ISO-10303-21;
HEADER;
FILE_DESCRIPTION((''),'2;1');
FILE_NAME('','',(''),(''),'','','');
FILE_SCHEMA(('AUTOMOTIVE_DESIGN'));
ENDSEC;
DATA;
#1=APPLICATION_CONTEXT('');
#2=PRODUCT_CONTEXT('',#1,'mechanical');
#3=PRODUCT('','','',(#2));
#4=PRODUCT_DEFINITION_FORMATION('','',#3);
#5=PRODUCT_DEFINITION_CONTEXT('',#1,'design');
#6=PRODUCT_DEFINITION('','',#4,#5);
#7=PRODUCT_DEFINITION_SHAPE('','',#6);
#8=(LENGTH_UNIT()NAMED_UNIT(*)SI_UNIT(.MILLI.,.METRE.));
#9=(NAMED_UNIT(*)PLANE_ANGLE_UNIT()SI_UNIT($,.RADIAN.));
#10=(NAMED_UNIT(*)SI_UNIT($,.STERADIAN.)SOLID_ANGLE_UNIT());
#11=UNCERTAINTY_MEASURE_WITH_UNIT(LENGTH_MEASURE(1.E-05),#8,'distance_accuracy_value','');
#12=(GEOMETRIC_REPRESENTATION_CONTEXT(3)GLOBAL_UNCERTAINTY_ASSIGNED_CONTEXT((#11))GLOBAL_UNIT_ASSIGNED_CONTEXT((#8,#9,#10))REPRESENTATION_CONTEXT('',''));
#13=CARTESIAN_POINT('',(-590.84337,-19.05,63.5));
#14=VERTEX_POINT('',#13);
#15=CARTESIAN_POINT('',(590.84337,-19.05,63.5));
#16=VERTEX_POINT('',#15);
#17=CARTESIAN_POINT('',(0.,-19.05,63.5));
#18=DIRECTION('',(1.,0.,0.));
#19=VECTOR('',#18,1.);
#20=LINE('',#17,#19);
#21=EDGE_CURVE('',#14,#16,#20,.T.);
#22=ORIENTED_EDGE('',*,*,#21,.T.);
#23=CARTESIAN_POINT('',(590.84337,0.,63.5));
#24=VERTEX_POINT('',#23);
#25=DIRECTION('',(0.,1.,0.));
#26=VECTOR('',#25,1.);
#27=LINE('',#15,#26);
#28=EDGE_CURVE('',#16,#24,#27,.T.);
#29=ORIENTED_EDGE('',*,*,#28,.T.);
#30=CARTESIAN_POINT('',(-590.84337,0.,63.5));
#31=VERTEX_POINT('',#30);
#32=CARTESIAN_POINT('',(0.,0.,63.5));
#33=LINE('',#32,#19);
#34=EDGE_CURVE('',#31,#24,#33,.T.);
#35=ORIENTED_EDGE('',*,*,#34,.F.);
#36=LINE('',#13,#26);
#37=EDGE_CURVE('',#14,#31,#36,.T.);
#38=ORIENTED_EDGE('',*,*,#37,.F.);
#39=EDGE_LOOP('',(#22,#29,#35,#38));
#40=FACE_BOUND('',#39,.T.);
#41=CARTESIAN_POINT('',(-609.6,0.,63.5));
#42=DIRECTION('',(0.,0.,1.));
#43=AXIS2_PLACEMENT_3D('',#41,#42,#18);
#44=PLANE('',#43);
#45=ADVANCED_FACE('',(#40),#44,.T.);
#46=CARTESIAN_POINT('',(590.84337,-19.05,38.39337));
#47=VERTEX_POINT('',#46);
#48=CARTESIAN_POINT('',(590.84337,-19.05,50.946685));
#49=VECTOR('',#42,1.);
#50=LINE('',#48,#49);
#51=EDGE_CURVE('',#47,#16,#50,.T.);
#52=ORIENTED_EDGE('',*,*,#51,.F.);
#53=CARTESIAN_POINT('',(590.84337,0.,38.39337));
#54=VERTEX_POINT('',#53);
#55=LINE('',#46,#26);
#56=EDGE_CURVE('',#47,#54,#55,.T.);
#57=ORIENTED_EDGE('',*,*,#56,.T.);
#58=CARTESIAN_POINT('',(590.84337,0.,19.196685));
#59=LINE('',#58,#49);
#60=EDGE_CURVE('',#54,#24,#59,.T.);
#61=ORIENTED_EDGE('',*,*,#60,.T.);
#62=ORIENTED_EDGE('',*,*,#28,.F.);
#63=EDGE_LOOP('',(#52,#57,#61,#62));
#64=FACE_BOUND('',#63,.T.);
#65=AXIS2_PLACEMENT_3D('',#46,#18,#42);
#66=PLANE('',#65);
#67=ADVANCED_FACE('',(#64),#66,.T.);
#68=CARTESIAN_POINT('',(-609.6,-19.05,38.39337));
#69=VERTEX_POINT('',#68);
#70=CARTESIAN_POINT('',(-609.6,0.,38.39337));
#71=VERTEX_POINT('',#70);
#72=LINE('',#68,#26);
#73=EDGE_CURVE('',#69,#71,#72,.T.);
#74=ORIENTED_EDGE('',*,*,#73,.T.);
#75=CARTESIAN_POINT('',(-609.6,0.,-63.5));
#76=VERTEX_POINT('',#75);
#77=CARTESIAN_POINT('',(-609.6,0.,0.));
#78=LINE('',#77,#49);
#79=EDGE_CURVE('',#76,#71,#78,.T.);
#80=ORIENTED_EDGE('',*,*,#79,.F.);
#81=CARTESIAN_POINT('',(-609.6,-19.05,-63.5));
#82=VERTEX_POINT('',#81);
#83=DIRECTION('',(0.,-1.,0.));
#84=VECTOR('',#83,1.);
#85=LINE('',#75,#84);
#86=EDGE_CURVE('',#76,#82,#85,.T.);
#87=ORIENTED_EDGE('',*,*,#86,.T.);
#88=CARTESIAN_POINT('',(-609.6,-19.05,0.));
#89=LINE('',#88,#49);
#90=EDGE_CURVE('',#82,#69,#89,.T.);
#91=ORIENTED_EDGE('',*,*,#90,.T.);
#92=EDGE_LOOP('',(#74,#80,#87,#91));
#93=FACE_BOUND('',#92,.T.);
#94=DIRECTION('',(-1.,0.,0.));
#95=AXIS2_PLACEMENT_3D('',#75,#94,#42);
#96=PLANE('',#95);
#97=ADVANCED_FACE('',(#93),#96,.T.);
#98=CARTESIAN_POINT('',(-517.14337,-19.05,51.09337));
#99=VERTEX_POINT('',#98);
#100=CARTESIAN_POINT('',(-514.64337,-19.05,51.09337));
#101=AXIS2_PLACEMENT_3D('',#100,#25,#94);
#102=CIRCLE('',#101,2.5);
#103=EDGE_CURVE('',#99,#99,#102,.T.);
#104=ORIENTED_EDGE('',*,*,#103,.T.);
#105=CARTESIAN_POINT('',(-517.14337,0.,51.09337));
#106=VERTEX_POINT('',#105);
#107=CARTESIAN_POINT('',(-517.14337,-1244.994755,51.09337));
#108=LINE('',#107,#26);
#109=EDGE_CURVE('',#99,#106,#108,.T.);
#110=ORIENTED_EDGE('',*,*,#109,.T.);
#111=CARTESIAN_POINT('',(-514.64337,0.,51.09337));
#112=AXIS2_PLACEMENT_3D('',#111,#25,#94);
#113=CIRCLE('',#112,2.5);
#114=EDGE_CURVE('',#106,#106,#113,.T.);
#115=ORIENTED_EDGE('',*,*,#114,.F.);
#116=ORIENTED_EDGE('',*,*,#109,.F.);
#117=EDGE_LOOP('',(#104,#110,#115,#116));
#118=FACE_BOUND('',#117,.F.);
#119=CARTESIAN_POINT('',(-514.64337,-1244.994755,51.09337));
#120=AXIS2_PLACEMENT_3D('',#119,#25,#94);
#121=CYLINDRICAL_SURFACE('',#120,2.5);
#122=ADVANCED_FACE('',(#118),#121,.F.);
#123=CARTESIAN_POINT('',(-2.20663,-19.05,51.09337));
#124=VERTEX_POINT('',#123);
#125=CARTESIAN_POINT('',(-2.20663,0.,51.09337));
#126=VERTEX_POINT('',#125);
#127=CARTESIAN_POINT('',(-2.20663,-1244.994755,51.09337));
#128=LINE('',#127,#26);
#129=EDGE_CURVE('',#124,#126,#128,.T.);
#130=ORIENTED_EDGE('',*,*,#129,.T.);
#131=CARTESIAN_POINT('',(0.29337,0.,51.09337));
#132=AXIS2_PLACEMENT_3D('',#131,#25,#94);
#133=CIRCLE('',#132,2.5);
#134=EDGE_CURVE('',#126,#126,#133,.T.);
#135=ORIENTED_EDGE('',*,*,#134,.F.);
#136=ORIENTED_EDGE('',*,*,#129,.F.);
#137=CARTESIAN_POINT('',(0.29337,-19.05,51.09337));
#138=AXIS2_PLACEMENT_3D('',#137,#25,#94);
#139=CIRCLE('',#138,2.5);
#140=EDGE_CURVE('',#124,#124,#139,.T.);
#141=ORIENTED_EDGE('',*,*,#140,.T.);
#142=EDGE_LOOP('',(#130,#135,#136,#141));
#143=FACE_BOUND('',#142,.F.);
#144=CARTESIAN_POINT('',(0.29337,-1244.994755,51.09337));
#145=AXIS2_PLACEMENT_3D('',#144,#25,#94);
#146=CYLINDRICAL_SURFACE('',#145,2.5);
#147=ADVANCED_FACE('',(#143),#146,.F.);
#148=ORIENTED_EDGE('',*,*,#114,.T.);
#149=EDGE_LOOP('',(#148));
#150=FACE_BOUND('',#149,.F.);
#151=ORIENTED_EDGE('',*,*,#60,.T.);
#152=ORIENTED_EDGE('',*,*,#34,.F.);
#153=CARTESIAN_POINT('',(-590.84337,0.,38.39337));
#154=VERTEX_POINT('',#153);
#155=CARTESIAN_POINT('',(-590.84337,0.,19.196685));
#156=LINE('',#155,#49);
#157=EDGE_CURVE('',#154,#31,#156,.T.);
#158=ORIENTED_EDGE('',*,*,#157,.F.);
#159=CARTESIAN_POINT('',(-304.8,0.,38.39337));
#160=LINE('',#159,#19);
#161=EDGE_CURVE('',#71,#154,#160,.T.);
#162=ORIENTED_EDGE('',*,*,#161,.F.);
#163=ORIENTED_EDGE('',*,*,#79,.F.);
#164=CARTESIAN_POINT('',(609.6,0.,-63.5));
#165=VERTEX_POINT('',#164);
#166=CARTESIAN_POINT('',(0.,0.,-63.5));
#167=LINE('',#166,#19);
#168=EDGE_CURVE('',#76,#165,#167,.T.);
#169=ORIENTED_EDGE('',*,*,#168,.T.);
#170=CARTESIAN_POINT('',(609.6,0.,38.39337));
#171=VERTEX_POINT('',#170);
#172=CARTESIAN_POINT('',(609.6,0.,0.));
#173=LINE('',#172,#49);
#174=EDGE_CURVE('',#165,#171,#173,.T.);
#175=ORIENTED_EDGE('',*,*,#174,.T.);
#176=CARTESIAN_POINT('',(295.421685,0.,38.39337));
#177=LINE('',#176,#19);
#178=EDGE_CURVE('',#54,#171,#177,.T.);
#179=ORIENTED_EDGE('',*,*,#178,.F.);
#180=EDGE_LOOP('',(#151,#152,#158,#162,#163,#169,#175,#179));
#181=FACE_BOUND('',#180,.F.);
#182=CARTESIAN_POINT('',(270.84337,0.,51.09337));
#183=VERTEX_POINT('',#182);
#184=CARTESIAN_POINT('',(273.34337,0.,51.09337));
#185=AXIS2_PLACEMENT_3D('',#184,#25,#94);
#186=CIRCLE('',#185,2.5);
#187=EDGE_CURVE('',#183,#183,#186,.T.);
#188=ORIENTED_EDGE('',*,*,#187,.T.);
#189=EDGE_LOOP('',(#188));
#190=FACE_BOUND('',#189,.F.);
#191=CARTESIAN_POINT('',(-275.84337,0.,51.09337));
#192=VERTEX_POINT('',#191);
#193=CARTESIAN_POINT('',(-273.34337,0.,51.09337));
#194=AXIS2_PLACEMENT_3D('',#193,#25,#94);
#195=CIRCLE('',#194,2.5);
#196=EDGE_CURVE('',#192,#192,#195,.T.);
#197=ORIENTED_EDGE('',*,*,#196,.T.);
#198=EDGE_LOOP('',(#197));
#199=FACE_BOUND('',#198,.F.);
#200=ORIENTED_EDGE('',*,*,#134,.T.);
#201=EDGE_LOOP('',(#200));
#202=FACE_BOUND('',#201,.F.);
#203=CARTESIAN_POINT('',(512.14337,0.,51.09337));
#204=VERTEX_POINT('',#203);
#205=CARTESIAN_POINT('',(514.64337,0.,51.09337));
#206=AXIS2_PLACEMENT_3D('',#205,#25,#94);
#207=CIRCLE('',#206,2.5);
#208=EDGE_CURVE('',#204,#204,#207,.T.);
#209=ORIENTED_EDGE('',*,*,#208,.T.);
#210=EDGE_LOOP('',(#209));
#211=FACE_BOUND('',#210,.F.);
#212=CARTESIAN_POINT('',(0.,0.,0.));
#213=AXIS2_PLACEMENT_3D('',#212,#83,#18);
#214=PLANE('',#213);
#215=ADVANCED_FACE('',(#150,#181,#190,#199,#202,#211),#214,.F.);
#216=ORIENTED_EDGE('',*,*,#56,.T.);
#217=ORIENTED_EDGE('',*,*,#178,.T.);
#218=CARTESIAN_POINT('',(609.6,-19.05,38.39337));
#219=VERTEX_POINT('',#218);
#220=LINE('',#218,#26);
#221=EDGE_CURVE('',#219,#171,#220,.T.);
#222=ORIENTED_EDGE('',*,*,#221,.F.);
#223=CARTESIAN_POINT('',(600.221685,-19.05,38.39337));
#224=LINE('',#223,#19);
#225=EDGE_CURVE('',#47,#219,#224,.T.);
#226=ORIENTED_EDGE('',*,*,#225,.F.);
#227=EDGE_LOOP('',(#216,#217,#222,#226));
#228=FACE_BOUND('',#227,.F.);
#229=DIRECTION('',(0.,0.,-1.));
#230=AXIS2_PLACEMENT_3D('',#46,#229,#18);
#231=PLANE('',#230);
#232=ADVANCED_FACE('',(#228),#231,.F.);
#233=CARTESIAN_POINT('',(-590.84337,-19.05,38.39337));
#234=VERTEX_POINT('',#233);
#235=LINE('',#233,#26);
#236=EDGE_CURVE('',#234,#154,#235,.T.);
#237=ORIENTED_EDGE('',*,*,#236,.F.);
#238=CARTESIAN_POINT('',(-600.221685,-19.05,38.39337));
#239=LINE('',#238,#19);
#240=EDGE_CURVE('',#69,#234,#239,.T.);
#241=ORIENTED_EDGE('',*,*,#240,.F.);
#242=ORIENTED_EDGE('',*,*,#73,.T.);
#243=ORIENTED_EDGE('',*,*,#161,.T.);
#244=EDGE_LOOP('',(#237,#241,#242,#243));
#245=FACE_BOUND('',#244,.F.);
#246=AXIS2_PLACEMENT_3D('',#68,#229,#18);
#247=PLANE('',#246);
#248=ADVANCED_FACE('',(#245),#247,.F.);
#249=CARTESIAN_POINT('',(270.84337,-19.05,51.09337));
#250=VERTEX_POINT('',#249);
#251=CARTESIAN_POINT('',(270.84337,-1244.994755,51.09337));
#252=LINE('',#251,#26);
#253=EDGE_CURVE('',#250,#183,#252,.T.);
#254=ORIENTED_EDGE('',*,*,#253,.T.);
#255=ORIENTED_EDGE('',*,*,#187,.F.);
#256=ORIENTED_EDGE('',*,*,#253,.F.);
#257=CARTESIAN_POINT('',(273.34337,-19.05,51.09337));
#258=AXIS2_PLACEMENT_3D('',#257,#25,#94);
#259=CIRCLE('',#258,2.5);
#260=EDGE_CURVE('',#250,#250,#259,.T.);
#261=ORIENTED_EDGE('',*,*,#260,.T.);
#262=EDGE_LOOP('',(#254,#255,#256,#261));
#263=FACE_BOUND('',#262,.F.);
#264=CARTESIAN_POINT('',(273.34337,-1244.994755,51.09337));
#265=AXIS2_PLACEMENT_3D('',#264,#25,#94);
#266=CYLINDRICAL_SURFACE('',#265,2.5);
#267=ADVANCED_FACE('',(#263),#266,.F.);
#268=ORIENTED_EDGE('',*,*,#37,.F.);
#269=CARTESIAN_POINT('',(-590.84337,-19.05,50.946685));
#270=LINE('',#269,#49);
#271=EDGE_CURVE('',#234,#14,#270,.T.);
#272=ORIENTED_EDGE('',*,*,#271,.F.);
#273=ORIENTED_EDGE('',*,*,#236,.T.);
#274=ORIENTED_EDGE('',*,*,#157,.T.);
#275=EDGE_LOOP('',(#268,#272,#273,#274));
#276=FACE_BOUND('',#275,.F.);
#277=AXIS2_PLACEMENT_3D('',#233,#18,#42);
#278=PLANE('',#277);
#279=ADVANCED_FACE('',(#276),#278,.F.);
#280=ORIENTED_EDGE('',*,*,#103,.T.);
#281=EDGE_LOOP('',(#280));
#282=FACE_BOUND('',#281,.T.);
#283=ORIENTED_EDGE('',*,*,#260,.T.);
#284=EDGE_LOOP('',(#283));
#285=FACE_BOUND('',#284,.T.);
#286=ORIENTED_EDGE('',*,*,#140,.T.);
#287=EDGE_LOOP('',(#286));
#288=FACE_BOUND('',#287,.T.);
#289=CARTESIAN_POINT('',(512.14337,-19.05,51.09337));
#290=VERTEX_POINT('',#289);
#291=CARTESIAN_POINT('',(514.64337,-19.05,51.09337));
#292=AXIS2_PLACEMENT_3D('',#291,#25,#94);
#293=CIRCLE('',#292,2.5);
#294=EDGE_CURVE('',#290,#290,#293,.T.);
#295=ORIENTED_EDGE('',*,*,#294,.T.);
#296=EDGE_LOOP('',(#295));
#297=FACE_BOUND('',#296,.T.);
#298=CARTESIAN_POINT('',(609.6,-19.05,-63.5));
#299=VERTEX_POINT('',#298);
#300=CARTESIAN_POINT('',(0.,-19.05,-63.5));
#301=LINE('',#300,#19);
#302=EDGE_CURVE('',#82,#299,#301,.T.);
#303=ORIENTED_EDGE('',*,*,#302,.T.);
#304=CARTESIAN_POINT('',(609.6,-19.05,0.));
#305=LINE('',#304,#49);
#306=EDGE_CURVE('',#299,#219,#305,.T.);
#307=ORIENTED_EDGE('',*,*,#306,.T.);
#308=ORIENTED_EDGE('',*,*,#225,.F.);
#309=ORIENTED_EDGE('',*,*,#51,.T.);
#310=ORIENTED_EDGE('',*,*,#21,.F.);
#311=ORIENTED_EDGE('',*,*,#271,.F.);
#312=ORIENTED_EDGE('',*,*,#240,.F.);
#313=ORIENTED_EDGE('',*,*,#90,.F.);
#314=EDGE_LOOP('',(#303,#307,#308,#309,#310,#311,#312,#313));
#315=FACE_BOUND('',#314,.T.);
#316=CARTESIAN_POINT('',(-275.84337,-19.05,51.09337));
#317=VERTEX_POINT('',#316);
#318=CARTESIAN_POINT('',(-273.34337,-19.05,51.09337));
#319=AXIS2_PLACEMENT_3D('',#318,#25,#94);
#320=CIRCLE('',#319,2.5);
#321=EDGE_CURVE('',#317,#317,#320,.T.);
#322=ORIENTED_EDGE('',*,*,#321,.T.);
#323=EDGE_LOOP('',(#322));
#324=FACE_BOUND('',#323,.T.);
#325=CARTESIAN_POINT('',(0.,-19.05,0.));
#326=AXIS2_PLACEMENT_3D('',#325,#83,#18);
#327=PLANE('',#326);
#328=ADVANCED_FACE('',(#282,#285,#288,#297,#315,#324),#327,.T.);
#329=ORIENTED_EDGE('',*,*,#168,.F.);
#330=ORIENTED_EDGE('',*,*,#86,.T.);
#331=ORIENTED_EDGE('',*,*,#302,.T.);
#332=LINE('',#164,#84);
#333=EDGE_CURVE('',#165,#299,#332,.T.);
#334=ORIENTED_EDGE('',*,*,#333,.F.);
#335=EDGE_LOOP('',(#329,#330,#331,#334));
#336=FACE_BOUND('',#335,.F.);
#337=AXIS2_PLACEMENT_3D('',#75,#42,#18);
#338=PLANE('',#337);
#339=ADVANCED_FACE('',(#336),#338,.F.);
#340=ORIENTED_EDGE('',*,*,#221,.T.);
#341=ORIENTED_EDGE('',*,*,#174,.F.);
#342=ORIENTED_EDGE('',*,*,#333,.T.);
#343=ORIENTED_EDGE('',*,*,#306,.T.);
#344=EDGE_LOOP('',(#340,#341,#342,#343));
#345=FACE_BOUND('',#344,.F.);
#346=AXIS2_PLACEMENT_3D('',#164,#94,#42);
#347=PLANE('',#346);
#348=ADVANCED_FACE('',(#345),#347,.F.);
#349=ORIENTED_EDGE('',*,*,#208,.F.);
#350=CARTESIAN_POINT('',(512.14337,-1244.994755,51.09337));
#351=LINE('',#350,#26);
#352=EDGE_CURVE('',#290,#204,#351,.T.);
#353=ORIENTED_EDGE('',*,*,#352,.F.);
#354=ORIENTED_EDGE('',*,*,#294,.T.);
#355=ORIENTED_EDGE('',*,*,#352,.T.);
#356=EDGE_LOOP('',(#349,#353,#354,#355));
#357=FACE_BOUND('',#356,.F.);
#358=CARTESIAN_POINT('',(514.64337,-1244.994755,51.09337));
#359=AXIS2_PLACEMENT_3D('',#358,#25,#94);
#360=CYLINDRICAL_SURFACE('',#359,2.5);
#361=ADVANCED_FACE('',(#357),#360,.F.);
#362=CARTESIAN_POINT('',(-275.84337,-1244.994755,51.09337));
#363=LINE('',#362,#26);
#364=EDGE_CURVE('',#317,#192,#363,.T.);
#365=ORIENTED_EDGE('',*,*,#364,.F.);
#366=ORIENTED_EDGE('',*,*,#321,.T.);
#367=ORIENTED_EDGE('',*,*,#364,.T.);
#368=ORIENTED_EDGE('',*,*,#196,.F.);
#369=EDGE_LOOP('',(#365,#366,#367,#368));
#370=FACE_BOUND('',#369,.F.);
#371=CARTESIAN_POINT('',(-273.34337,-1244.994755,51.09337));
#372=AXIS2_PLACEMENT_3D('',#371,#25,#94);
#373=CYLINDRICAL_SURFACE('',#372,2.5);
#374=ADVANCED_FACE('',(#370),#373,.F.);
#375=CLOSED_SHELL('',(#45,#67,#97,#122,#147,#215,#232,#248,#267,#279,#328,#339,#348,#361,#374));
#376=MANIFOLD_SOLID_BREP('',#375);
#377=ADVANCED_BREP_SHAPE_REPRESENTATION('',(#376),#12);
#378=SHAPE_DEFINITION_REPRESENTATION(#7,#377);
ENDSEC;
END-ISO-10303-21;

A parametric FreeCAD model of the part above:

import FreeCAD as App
import Part
import Sketcher
Q = App.Units.Quantity

doc = App.newDocument("Part")
body = doc.addObject("PartDesign::Body", "Body")

sketch1 = body.newObject("Sketcher::SketchObject", "Sketch")
sketch1.AttachmentSupport = (doc.getObject("XZ_Plane"), [""])
sketch1.MapMode = "FlatFace"
sketch1.addGeometry([
    Part.LineSegment(App.Vector(-610, 64, 0), App.Vector(-610, -64, 0)),
    Part.LineSegment(App.Vector(-610, -64, 0), App.Vector(610, -64, 0)),
    Part.LineSegment(App.Vector(610, -64, 0), App.Vector(610, 64, 0)),
    Part.LineSegment(App.Vector(610, 64, 0), App.Vector(-610, 64, 0)),
], False)
sketch1.addConstraint([
    Sketcher.Constraint("Coincident", 0, 2, 1, 1),
    Sketcher.Constraint("Coincident", 1, 2, 2, 1),
    Sketcher.Constraint("Coincident", 2, 2, 3, 1),
    Sketcher.Constraint("Coincident", 3, 2, 0, 1),
    Sketcher.Constraint("Vertical", 0),
    Sketcher.Constraint("Horizontal", 1),
    Sketcher.Constraint("Vertical", 2),
    Sketcher.Constraint("Horizontal", 3),
    Sketcher.Constraint("Symmetric", 0, 2, 2, 2, -1, 1),
    Sketcher.Constraint("DistanceX", 1, 1, 1, 2, Q("48 in")),
    Sketcher.Constraint("DistanceY", 0, 2, 0, 1, Q("5 in")),
])
pad1 = body.newObject("PartDesign::Pad", "Pad")
pad1.Profile = sketch1
pad1.Length = Q("0.75 in")

sketch2 = body.newObject("Sketcher::SketchObject", "Sketch001")
sketch2.AttachmentSupport = (doc.getObject("XZ_Plane"), [""])
sketch2.MapMode = "FlatFace"
sketch2.AttachmentOffset = App.Placement(App.Vector(0, 0, 0.75 * 25.4), App.Rotation())
sketch2.addGeometry([
    Part.LineSegment(App.Vector(-610, 64, 0), App.Vector(-610, 38, 0)),
    Part.LineSegment(App.Vector(-610, 38, 0), App.Vector(-591, 38, 0)),
    Part.LineSegment(App.Vector(-591, 38, 0), App.Vector(-591, 64, 0)),
    Part.LineSegment(App.Vector(-591, 64, 0), App.Vector(-610, 64, 0)),
    Part.LineSegment(App.Vector(591, 64, 0), App.Vector(591, 38, 0)),
    Part.LineSegment(App.Vector(591, 38, 0), App.Vector(610, 38, 0)),
    Part.LineSegment(App.Vector(610, 38, 0), App.Vector(610, 64, 0)),
    Part.LineSegment(App.Vector(610, 64, 0), App.Vector(591, 64, 0)),
], False)
sketch2.addConstraint([
    Sketcher.Constraint("Coincident", 0, 2, 1, 1),
    Sketcher.Constraint("Coincident", 1, 2, 2, 1),
    Sketcher.Constraint("Coincident", 2, 2, 3, 1),
    Sketcher.Constraint("Coincident", 3, 2, 0, 1),
    Sketcher.Constraint("Coincident", 4, 2, 5, 1),
    Sketcher.Constraint("Coincident", 5, 2, 6, 1),
    Sketcher.Constraint("Coincident", 6, 2, 7, 1),
    Sketcher.Constraint("Coincident", 7, 2, 4, 1),
    Sketcher.Constraint("Vertical", 0),
    Sketcher.Constraint("Horizontal", 1),
    Sketcher.Constraint("Vertical", 2),
    Sketcher.Constraint("Horizontal", 3),
    Sketcher.Constraint("Vertical", 4),
    Sketcher.Constraint("Horizontal", 5),
    Sketcher.Constraint("Vertical", 6),
    Sketcher.Constraint("Horizontal", 7),
    Sketcher.Constraint("Symmetric", 1, 2, 4, 2, -2),
    Sketcher.Constraint("Symmetric", 3, 2, 6, 2, -2),
    Sketcher.Constraint("DistanceX", 0, 2, -1, 1, Q("24 in")),
    Sketcher.Constraint("DistanceY", -1, 1, 2, 2, Q("2.5 in")),
    Sketcher.Constraint("DistanceX", 1, 2, 4, 2, Q("46.5231 in")),
    Sketcher.Constraint("DistanceY", 0, 2, 0, 1, 25.10663),
])
pocket1 = body.newObject("PartDesign::Pocket", "Pocket")
pocket1.Profile = sketch2
pocket1.Type = "ThroughAll"

sketch3 = body.newObject("Sketcher::SketchObject", "Sketch002")
sketch3.AttachmentSupport = (doc.getObject("XZ_Plane"), [""])
sketch3.MapMode = "FlatFace"
sketch3.AttachmentOffset = App.Placement(App.Vector(0, 0, 0.75 * 25.4), App.Rotation())
sketch3.addGeometry([
    Part.Circle(App.Vector(-514.6, 51.1, 0), App.Vector(0, 0, 1), 2.5),
    Part.Circle(App.Vector(-273.3, 51.1, 0), App.Vector(0, 0, 1), 2.5),
    Part.Circle(App.Vector(0.3, 51.1, 0), App.Vector(0, 0, 1), 2.5),
    Part.Circle(App.Vector(273.3, 51.1, 0), App.Vector(0, 0, 1), 2.5),
    Part.Circle(App.Vector(514.6, 51.1, 0), App.Vector(0, 0, 1), 2.5),
], False)
sketch3.addConstraint([
    Sketcher.Constraint("Equal", 0, 1),
    Sketcher.Constraint("Equal", 1, 2),
    Sketcher.Constraint("Equal", 2, 3),
    Sketcher.Constraint("Equal", 3, 4),
    Sketcher.Constraint("Symmetric", 1, 3, 3, 3, -2),
    Sketcher.Constraint("Symmetric", 0, 3, 4, 3, -2),
    Sketcher.Constraint("Horizontal", 0, 3, 1, 3),
    Sketcher.Constraint("Horizontal", 1, 3, 2, 3),
    Sketcher.Constraint("DistanceX", 0, 3, 1, 3, Q("9.5 in")),
    Sketcher.Constraint("Diameter", 0, 5.0),
    Sketcher.Constraint("DistanceX", 2, 3, 3, 3, Q("10.75 in")),
    Sketcher.Constraint("DistanceX", 1, 3, 2, 3, Q("10.7731 in")),
    Sketcher.Constraint("DistanceY", -1, 1, 0, 3, 51.09337),
])
doc.recompute()
hole = body.newObject("PartDesign::Hole", "Hole")
hole.Profile = sketch3
hole.ThreadType = "None"
hole.Diameter = 5
hole.DepthType = "ThroughAll"

doc.recompute()
